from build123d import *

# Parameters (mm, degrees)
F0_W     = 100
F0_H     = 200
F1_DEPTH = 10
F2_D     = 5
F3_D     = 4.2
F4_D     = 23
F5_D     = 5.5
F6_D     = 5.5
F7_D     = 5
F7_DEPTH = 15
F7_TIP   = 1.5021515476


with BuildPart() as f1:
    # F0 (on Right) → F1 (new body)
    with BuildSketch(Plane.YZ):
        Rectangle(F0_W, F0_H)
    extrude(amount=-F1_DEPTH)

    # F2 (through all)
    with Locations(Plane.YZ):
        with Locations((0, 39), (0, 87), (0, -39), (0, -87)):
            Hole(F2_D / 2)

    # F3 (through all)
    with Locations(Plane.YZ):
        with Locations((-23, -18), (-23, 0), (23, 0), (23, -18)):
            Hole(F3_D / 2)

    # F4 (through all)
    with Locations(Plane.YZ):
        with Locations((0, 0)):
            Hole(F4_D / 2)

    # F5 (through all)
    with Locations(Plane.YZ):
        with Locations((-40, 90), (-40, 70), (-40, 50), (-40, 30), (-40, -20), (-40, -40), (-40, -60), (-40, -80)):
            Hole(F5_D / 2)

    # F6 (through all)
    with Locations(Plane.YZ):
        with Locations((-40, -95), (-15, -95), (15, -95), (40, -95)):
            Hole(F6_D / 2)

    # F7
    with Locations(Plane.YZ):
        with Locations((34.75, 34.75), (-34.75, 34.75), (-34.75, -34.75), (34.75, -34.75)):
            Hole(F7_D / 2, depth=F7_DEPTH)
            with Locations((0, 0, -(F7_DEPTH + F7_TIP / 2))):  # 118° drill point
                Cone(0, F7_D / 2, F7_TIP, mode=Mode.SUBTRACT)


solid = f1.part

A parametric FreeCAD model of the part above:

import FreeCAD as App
import Part
import Sketcher
Q = App.Units.Quantity


def add_polygon(sketch, points):
    """Adds a closed chain of lines whose ends are joined by coincident constraints."""
    first, n = sketch.GeometryCount, len(points)
    for a, b in zip(points, points[1:] + points[:1]):
        sketch.addGeometry(Part.LineSegment(App.Vector(*a, 0), App.Vector(*b, 0)), False)
    for i in range(n):
        sketch.addConstraint(Sketcher.Constraint("Coincident", first + i, 2, first + (i + 1) % n, 1))

doc = App.newDocument("Part")
params = doc.addObject("Spreadsheet::Sheet", "Params")
for row, (alias, value) in enumerate([
    ("sketch1_width", "100 mm"),
    ("sketch1_height", "200 mm"),
    ("pad1_length", "10 mm"),
    ("sketch2_diameter", "5 mm"),
    ("hole_diameter", "5 mm"),
    ("sketch3_diameter", "4.2 mm"),
    ("hole2_diameter", "4.2 mm"),
    ("sketch4_diameter", "23 mm"),
    ("hole3_diameter", "23 mm"),
    ("sketch5_diameter", "5.5 mm"),
    ("hole4_diameter", "5.5 mm"),
    ("sketch6_diameter", "5.5 mm"),
    ("hole5_diameter", "5.5 mm"),
    ("sketch7_diameter", "5 mm"),
    ("hole6_diameter", "5 mm"),
    ("hole6_depth", "15 mm"),
], start=1):
    params.set(f"A{row}", alias)
    params.set(f"B{row}", "=" + value)
    params.setAlias(f"B{row}", alias)

body = doc.addObject("PartDesign::Body", "Body")

sketch1 = doc.addObject("Sketcher::SketchObject", "Sketch")
body.addObject(sketch1)
sketch1.AttachmentSupport = (doc.YZ_Plane, [""])
sketch1.MapMode = "FlatFace"
add_polygon(sketch1, [(-50, 100), (-50, -100), (50, -100), (50, 100)])
sketch1.addConstraint([
    Sketcher.Constraint("Vertical", 0),
    Sketcher.Constraint("Horizontal", 1),
    Sketcher.Constraint("Vertical", 2),
    Sketcher.Constraint("Horizontal", 3),
    Sketcher.Constraint("Symmetric", 0, 2, 2, 2, -1, 1),
    Sketcher.Constraint("DistanceX", 1, 1, 1, 2, Q("100 mm")),
    Sketcher.Constraint("DistanceY", 0, 2, 0, 1, Q("200 mm")),
])
sketch1.setExpression("Constraints[9]", "Params.sketch1_width")
sketch1.setExpression("Constraints[10]", "Params.sketch1_height")
pad1 = doc.addObject("PartDesign::Pad", "Pad")
body.addObject(pad1)
pad1.Profile = sketch1
pad1.setExpression("Length", "Params.pad1_length")
pad1.Reversed = True

sketch2 = doc.addObject("Sketcher::SketchObject", "Sketch001")
body.addObject(sketch2)
sketch2.AttachmentSupport = (doc.YZ_Plane, [""])
sketch2.MapMode = "FlatFace"
sketch2.addGeometry([
    Part.Circle(App.Vector(0, 39, 0), App.Vector(0, 0, 1), 2.5),
    Part.Circle(App.Vector(0, 87, 0), App.Vector(0, 0, 1), 2.5),
    Part.Circle(App.Vector(0, -39, 0), App.Vector(0, 0, 1), 2.5),
    Part.Circle(App.Vector(0, -87, 0), App.Vector(0, 0, 1), 2.5),
], False)
sketch2.addConstraint([
    Sketcher.Constraint("Equal", 0, 1),
    Sketcher.Constraint("Equal", 1, 2),
    Sketcher.Constraint("Equal", 2, 3),
    Sketcher.Constraint("Symmetric", 0, 3, 2, 3, -1, 1),
    Sketcher.Constraint("Symmetric", 1, 3, 3, 3, -1, 1),
    Sketcher.Constraint("PointOnObject", 0, 3, -2),
    Sketcher.Constraint("PointOnObject", 1, 3, -2),
    Sketcher.Constraint("Diameter", 0, Q("5 mm")),
    Sketcher.Constraint("DistanceY", -1, 1, 0, 3, Q("39 mm")),
    Sketcher.Constraint("DistanceY", -1, 1, 1, 3, Q("87 mm")),
])
sketch2.setExpression("Constraints[7]", "Params.sketch2_diameter")
doc.recompute()
hole = doc.addObject("PartDesign::Hole", "Hole")
body.addObject(hole)
hole.Profile = sketch2
hole.ThreadType = "None"
hole.setExpression("Diameter", "Params.hole_diameter")
hole.DepthType = "ThroughAll"

sketch3 = doc.addObject("Sketcher::SketchObject", "Sketch002")
body.addObject(sketch3)
sketch3.AttachmentSupport = (doc.YZ_Plane, [""])
sketch3.MapMode = "FlatFace"
sketch3.addGeometry([
    Part.Circle(App.Vector(-23, -18, 0), App.Vector(0, 0, 1), 2.1),
    Part.Circle(App.Vector(-23, 0, 0), App.Vector(0, 0, 1), 2.1),
    Part.Circle(App.Vector(23, 0, 0), App.Vector(0, 0, 1), 2.1),
    Part.Circle(App.Vector(23, -18, 0), App.Vector(0, 0, 1), 2.1),
], False)
sketch3.addConstraint([
    Sketcher.Constraint("Equal", 0, 1),
    Sketcher.Constraint("Equal", 1, 2),
    Sketcher.Constraint("Equal", 2, 3),
    Sketcher.Constraint("Symmetric", 1, 3, 2, 3, -1, 1),
    Sketcher.Constraint("Symmetric", 0, 3, 3, 3, -2),
    Sketcher.Constraint("PointOnObject", 1, 3, -1),
    Sketcher.Constraint("Vertical", 0, 3, 1, 3),
    Sketcher.Constraint("Diameter", 0, Q("4.2 mm")),
    Sketcher.Constraint("DistanceX", 0, 3, -1, 1, Q("23 mm")),
    Sketcher.Constraint("DistanceY", 0, 3, -1, 1, Q("18 mm")),
])
sketch3.setExpression("Constraints[7]", "Params.sketch3_diameter")
doc.recompute()
hole2 = doc.addObject("PartDesign::Hole", "Hole001")
body.addObject(hole2)
hole2.Profile = sketch3
hole2.ThreadType = "None"
hole2.setExpression("Diameter", "Params.hole2_diameter")
hole2.DepthType = "ThroughAll"

sketch4 = doc.addObject("Sketcher::SketchObject", "Sketch003")
body.addObject(sketch4)
sketch4.AttachmentSupport = (doc.YZ_Plane, [""])
sketch4.MapMode = "FlatFace"
sketch4.addGeometry(Part.Circle(App.Vector(0, 0, 0), App.Vector(0, 0, 1), 12), False)
sketch4.addConstraint([
    Sketcher.Constraint("Coincident", 0, 3, -1, 1),
    Sketcher.Constraint("Diameter", 0, Q("23 mm")),
])
sketch4.setExpression("Constraints[1]", "Params.sketch4_diameter")
doc.recompute()
hole3 = doc.addObject("PartDesign::Hole", "Hole002")
body.addObject(hole3)
hole3.Profile = sketch4
hole3.ThreadType = "None"
hole3.setExpression("Diameter", "Params.hole3_diameter")
hole3.DepthType = "ThroughAll"

sketch5 = doc.addObject("Sketcher::SketchObject", "Sketch004")
body.addObject(sketch5)
sketch5.AttachmentSupport = (doc.YZ_Plane, [""])
sketch5.MapMode = "FlatFace"
sketch5.addGeometry([
    Part.Circle(App.Vector(-40, 90, 0), App.Vector(0, 0, 1), 2.8),
    Part.Circle(App.Vector(-40, 70, 0), App.Vector(0, 0, 1), 2.8),
    Part.Circle(App.Vector(-40, 50, 0), App.Vector(0, 0, 1), 2.8),
    Part.Circle(App.Vector(-40, 30, 0), App.Vector(0, 0, 1), 2.8),
    Part.Circle(App.Vector(-40, -20, 0), App.Vector(0, 0, 1), 2.8),
    Part.Circle(App.Vector(-40, -40, 0), App.Vector(0, 0, 1), 2.8),
    Part.Circle(App.Vector(-40, -60, 0), App.Vector(0, 0, 1), 2.8),
    Part.Circle(App.Vector(-40, -80, 0), App.Vector(0, 0, 1), 2.8),
], False)
sketch5.addConstraint([
    Sketcher.Constraint("Equal", 0, 1),
    Sketcher.Constraint("Equal", 1, 2),
    Sketcher.Constraint("Equal", 2, 3),
    Sketcher.Constraint("Equal", 3, 4),
    Sketcher.Constraint("Equal", 4, 5),
    Sketcher.Constraint("Equal", 5, 6),
    Sketcher.Constraint("Equal", 6, 7),
    Sketcher.Constraint("Vertical", 0, 3, 1, 3),
    Sketcher.Constraint("Vertical", 1, 3, 2, 3),
    Sketcher.Constraint("Vertical", 2, 3, 3, 3),
    Sketcher.Constraint("Vertical", 3, 3, 4, 3),
    Sketcher.Constraint("Vertical", 4, 3, 5, 3),
    Sketcher.Constraint("Vertical", 5, 3, 6, 3),
    Sketcher.Constraint("Vertical", 6, 3, 7, 3),
    Sketcher.Constraint("Diameter", 0, Q("5.5 mm")),
    Sketcher.Constraint("DistanceX", 0, 3, -1, 1, Q("40 mm")),
    Sketcher.Constraint("DistanceY", -1, 1, 0, 3, Q("90 mm")),
    Sketcher.Constraint("DistanceY", -1, 1, 1, 3, Q("70 mm")),
    Sketcher.Constraint("DistanceY", -1, 1, 2, 3, Q("50 mm")),
    Sketcher.Constraint("DistanceY", -1, 1, 3, 3, Q("30 mm")),
    Sketcher.Constraint("DistanceY", 4, 3, -1, 1, Q("20 mm")),
    Sketcher.Constraint("DistanceY", 5, 3, -1, 1, Q("40 mm")),
    Sketcher.Constraint("DistanceY", 6, 3, -1, 1, Q("60 mm")),
    Sketcher.Constraint("DistanceY", 7, 3, -1, 1, Q("80 mm")),
])
sketch5.setExpression("Constraints[14]", "Params.sketch5_diameter")
doc.recompute()
hole4 = doc.addObject("PartDesign::Hole", "Hole003")
body.addObject(hole4)
hole4.Profile = sketch5
hole4.ThreadType = "None"
hole4.setExpression("Diameter", "Params.hole4_diameter")
hole4.DepthType = "ThroughAll"

sketch6 = doc.addObject("Sketcher::SketchObject", "Sketch005")
body.addObject(sketch6)
sketch6.AttachmentSupport = (doc.YZ_Plane, [""])
sketch6.MapMode = "FlatFace"
sketch6.addGeometry([
    Part.Circle(App.Vector(-40, -95, 0), App.Vector(0, 0, 1), 2.8),
    Part.Circle(App.Vector(-15, -95, 0), App.Vector(0, 0, 1), 2.8),
    Part.Circle(App.Vector(15, -95, 0), App.Vector(0, 0, 1), 2.8),
    Part.Circle(App.Vector(40, -95, 0), App.Vector(0, 0, 1), 2.8),
], False)
sketch6.addConstraint([
    Sketcher.Constraint("Equal", 0, 1),
    Sketcher.Constraint("Equal", 1, 2),
    Sketcher.Constraint("Equal", 2, 3),
    Sketcher.Constraint("Symmetric", 1, 3, 2, 3, -2),
    Sketcher.Constraint("Symmetric", 0, 3, 3, 3, -2),
    Sketcher.Constraint("Horizontal", 0, 3, 1, 3),
    Sketcher.Constraint("Diameter", 0, Q("5.5 mm")),
    Sketcher.Constraint("DistanceX", 0, 3, -1, 1, Q("40 mm")),
    Sketcher.Constraint("DistanceY", 0, 3, -1, 1, Q("95 mm")),
    Sketcher.Constraint("DistanceX", 1, 3, -1, 1, Q("15 mm")),
])
sketch6.setExpression("Constraints[6]", "Params.sketch6_diameter")
doc.recompute()
hole5 = doc.addObject("PartDesign::Hole", "Hole004")
body.addObject(hole5)
hole5.Profile = sketch6
hole5.ThreadType = "None"
hole5.setExpression("Diameter", "Params.hole5_diameter")
hole5.DepthType = "ThroughAll"

sketch7 = doc.addObject("Sketcher::SketchObject", "Sketch006")
body.addObject(sketch7)
sketch7.AttachmentSupport = (doc.YZ_Plane, [""])
sketch7.MapMode = "FlatFace"
sketch7.addGeometry([
    Part.Circle(App.Vector(34.8, 34.8, 0), App.Vector(0, 0, 1), 2.5),
    Part.Circle(App.Vector(-34.8, 34.8, 0), App.Vector(0, 0, 1), 2.5),
    Part.Circle(App.Vector(-34.8, -34.8, 0), App.Vector(0, 0, 1), 2.5),
    Part.Circle(App.Vector(34.8, -34.8, 0), App.Vector(0, 0, 1), 2.5),
], False)
sketch7.addConstraint([
    Sketcher.Constraint("Equal", 0, 1),
    Sketcher.Constraint("Equal", 1, 2),
    Sketcher.Constraint("Equal", 2, 3),
    Sketcher.Constraint("Symmetric", 0, 3, 2, 3, -1, 1),
    Sketcher.Constraint("Symmetric", 1, 3, 3, 3, -1, 1),
    Sketcher.Constraint("Symmetric", 0, 3, 1, 3, -2),
    Sketcher.Constraint("Diameter", 0, Q("5 mm")),
    Sketcher.Constraint("DistanceX", 1, 3, 0, 3, Q("69.5 mm")),
    Sketcher.Constraint("DistanceY", 2, 3, 1, 3, Q("69.5 mm")),
])
sketch7.setExpression("Constraints[6]", "Params.sketch7_diameter")
doc.recompute()
hole6 = doc.addObject("PartDesign::Hole", "Hole005")
body.addObject(hole6)
hole6.Profile = sketch7
hole6.ThreadType = "None"
hole6.setExpression("Diameter", "Params.hole6_diameter")
hole6.DepthType = "Dimension"
hole6.setExpression("Depth", "Params.hole6_depth")
hole6.DrillPoint = "Angled"
hole6.DrillPointAngle = 118

doc.recompute()
